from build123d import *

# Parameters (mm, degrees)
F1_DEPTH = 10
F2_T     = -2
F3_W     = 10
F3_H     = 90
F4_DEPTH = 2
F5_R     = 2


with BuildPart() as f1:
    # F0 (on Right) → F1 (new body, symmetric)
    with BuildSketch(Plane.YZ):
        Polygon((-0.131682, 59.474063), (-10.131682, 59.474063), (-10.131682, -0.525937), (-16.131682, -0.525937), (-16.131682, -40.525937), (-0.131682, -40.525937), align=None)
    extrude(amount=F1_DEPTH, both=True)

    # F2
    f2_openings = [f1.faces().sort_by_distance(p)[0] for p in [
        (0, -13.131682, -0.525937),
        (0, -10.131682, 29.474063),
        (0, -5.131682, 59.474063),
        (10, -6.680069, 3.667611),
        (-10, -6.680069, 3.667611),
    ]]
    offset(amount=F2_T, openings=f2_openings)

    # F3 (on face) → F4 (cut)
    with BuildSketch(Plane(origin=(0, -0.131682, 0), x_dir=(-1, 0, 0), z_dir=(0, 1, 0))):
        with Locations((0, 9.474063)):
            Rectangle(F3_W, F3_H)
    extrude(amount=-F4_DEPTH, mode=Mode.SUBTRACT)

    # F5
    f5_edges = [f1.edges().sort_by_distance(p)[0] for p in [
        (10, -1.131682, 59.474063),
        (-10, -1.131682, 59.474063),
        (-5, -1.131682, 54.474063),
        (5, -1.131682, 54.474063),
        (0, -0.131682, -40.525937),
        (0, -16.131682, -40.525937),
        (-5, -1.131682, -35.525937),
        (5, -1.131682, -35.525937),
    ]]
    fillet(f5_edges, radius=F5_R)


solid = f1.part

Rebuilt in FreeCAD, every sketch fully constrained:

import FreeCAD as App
import Part
import Sketcher

V = App.Vector


def edges_at(feature, points):
    """Names of the edges that pass closest to the given points."""
    edges = feature.Shape.Edges
    near = lambda p: min(range(len(edges)), key=lambda i: edges[i].distToShape(Part.Vertex(*p))[0])
    return sorted({f"Edge{near(p) + 1}" for p in points})


def faces_at(feature, points):
    """Names of the faces that lie closest to the given points."""
    faces = feature.Shape.Faces
    near = lambda p: min(range(len(faces)), key=lambda i: faces[i].distToShape(Part.Vertex(*p))[0])
    return sorted({f"Face{near(p) + 1}" for p in points})

doc = App.newDocument("Part")
body = doc.addObject("PartDesign::Body", "Body")

# Sketch on YZ plane
sketch1 = doc.addObject("Sketcher::SketchObject", "Sketch")
body.addObject(sketch1)
sketch1.AttachmentSupport = (doc.YZ_Plane, [""])
sketch1.MapMode = "FlatFace"
sketch1.addGeometry(Part.LineSegment(V(0, 59, 0), V(-10, 59, 0)), False)
sketch1.addGeometry(Part.LineSegment(V(-10, 59, 0), V(-10, -1, 0)), False)
sketch1.addGeometry(Part.LineSegment(V(-10, -1, 0), V(-16, -1, 0)), False)
sketch1.addGeometry(Part.LineSegment(V(-16, -1, 0), V(-16, -41, 0)), False)
sketch1.addGeometry(Part.LineSegment(V(-16, -41, 0), V(0, -41, 0)), False)
sketch1.addGeometry(Part.LineSegment(V(0, -41, 0), V(0, 59, 0)), False)
sketch1.addConstraint(Sketcher.Constraint("Coincident", 0, 2, 1, 1))
sketch1.addConstraint(Sketcher.Constraint("Coincident", 1, 2, 2, 1))
sketch1.addConstraint(Sketcher.Constraint("Coincident", 2, 2, 3, 1))
sketch1.addConstraint(Sketcher.Constraint("Coincident", 3, 2, 4, 1))
sketch1.addConstraint(Sketcher.Constraint("Coincident", 4, 2, 5, 1))
sketch1.addConstraint(Sketcher.Constraint("Coincident", 5, 2, 0, 1))
sketch1.addConstraint(Sketcher.Constraint("Horizontal", 0))
sketch1.addConstraint(Sketcher.Constraint("Vertical", 1))
sketch1.addConstraint(Sketcher.Constraint("Horizontal", 2))
sketch1.addConstraint(Sketcher.Constraint("Vertical", 3))
sketch1.addConstraint(Sketcher.Constraint("Horizontal", 4))
sketch1.addConstraint(Sketcher.Constraint("Vertical", 5))
sketch1.addConstraint(Sketcher.Constraint("DistanceX", 0, 2, 0, 1, 10.0))
sketch1.addConstraint(Sketcher.Constraint("DistanceX", 2, 2, 2, 1, 6.0))
sketch1.addConstraint(Sketcher.Constraint("DistanceY", 1, 2, 1, 1, 60.0))
sketch1.addConstraint(Sketcher.Constraint("DistanceY", 3, 2, 3, 1, 40.0))
sketch1.addConstraint(Sketcher.Constraint("DistanceX", 0, 2, -1, 1, 10.131682))
sketch1.addConstraint(Sketcher.Constraint("DistanceY", -1, 1, 0, 2, 59.474063))
pad1 = doc.addObject("PartDesign::Pad", "Pad")
body.addObject(pad1)
pad1.Profile = sketch1
pad1.Length = 20
pad1.Midplane = True
doc.recompute()

thickness = doc.addObject("PartDesign::Thickness", "Thickness")
body.addObject(thickness)
thickness.Base = (pad1, faces_at(pad1, [
    (0, -13.132, -0.526),
    (0, -10.132, 29.474),
    (0, -5.132, 59.474),
    (10, -8.132, 9.474),
    (-10, -8.132, 9.474),
]))
thickness.Value = 2
thickness.Reversed = True
thickness.Join = "Arc"

# Sketch on XZ plane
sketch2 = doc.addObject("Sketcher::SketchObject", "Sketch001")
body.addObject(sketch2)
sketch2.AttachmentSupport = (doc.XZ_Plane, [""])
sketch2.MapMode = "FlatFace"
sketch2.AttachmentOffset = App.Placement(V(0, 0, 0.131682), App.Rotation())
sketch2.addGeometry(Part.LineSegment(V(5, 54, 0), V(5, -36, 0)), False)
sketch2.addGeometry(Part.LineSegment(V(5, -36, 0), V(-5, -36, 0)), False)
sketch2.addGeometry(Part.LineSegment(V(-5, -36, 0), V(-5, 54, 0)), False)
sketch2.addGeometry(Part.LineSegment(V(-5, 54, 0), V(5, 54, 0)), False)
sketch2.addConstraint(Sketcher.Constraint("Coincident", 0, 2, 1, 1))
sketch2.addConstraint(Sketcher.Constraint("Coincident", 1, 2, 2, 1))
sketch2.addConstraint(Sketcher.Constraint("Coincident", 2, 2, 3, 1))
sketch2.addConstraint(Sketcher.Constraint("Coincident", 3, 2, 0, 1))
sketch2.addConstraint(Sketcher.Constraint("Vertical", 0))
sketch2.addConstraint(Sketcher.Constraint("Horizontal", 1))
sketch2.addConstraint(Sketcher.Constraint("Vertical", 2))
sketch2.addConstraint(Sketcher.Constraint("Horizontal", 3))
sketch2.addConstraint(Sketcher.Constraint("DistanceX", 1, 2, 1, 1, 10.0))
sketch2.addConstraint(Sketcher.Constraint("DistanceY", 0, 2, 0, 1, 90.0))
sketch2.addConstraint(Sketcher.Constraint("DistanceX", -1, 1, 0, 2, 5.0))
sketch2.addConstraint(Sketcher.Constraint("DistanceY", 0, 2, -1, 1, 35.525937))
pocket1 = doc.addObject("PartDesign::Pocket", "Pocket")
body.addObject(pocket1)
pocket1.Profile = sketch2
pocket1.Length = 2
pocket1.Reversed = True
doc.recompute()

fillet = doc.addObject("PartDesign::Fillet", "Fillet")
body.addObject(fillet)
fillet.Base = (pocket1, edges_at(pocket1, [
    (10, -1.132, 59.474),
    (-10, -1.132, 59.474),
    (-5, -1.132, 54.474),
    (5, -1.132, 54.474),
    (0, -0.132, -40.526),
    (0, -16.132, -40.526),
    (-5, -1.132, -35.526),
    (5, -1.132, -35.526),
]))
fillet.Radius = 2

doc.recompute()
